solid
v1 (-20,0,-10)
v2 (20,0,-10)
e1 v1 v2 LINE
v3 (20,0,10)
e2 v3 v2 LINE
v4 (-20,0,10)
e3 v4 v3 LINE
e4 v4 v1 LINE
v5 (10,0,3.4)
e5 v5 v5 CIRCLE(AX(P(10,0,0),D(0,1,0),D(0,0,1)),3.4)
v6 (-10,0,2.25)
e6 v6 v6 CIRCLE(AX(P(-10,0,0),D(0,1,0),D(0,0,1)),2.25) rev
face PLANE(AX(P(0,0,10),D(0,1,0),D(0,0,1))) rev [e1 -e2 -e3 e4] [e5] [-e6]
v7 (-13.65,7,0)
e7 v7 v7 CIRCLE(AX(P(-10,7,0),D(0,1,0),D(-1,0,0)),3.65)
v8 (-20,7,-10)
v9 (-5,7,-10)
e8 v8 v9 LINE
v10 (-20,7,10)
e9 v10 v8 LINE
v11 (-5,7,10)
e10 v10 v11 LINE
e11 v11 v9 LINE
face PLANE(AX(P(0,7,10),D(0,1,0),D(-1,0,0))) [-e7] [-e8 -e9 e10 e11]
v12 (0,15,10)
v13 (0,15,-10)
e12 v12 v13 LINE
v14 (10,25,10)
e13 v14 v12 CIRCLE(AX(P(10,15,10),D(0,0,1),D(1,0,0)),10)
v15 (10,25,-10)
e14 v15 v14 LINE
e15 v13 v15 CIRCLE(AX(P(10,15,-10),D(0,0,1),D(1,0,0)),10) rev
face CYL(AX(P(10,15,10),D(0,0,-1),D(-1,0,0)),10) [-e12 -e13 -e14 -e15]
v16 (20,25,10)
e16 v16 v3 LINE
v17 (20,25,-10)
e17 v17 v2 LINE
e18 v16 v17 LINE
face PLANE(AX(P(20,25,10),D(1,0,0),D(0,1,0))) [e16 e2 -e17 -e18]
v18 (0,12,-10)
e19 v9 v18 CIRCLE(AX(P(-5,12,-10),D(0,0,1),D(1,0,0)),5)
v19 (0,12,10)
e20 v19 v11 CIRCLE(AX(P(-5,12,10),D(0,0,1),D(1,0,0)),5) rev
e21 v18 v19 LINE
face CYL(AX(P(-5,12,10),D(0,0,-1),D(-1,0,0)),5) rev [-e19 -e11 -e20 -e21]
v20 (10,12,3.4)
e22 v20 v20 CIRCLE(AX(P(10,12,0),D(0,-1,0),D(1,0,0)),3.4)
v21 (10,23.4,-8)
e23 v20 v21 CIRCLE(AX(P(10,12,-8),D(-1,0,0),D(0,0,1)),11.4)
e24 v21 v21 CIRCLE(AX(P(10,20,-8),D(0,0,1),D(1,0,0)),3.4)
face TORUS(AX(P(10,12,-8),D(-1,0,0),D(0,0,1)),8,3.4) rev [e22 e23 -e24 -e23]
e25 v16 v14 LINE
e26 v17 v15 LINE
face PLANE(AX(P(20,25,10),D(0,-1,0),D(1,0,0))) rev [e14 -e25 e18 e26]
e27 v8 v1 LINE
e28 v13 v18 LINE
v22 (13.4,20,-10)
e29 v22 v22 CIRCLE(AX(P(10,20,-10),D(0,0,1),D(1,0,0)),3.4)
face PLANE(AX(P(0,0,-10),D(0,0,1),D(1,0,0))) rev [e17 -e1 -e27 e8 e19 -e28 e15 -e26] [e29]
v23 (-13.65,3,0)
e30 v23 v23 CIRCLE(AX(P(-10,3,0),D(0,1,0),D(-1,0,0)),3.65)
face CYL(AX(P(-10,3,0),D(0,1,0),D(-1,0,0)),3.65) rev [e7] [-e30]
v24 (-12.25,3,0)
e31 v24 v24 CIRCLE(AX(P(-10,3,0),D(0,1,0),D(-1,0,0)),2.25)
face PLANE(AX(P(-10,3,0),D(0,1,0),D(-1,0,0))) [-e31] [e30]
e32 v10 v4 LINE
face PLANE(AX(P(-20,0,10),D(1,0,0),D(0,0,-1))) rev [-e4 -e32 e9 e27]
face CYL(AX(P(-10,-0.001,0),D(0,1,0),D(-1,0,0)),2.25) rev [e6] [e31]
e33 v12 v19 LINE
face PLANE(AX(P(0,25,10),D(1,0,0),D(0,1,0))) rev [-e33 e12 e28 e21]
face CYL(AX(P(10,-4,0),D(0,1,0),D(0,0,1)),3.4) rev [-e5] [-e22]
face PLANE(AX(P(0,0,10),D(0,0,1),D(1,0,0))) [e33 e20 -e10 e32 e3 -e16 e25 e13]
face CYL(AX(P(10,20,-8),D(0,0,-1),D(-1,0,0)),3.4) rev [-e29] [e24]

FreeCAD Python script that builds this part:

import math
import FreeCAD as App
import Part
import Sketcher

V = App.Vector
Q = App.Units.Quantity


def edges_at(feature, points):
    """Names of the edges that pass closest to the given points."""
    edges = feature.Shape.Edges
    near = lambda p: min(range(len(edges)), key=lambda i: edges[i].distToShape(Part.Vertex(*p))[0])
    return sorted({f"Edge{near(p) + 1}" for p in points})

doc = App.newDocument("Part")
body = doc.addObject("PartDesign::Body", "Body")

# Sketch on XY plane
sketch1 = body.newObject("Sketcher::SketchObject", "Sketch")
sketch1.AttachmentSupport = (doc.getObject("XY_Plane"), [""])
sketch1.MapMode = "FlatFace"
sketch1.addGeometry(Part.LineSegment(V(20, 0, 0), V(20, 25, 0)), False)
sketch1.addGeometry(Part.LineSegment(V(20, 25, 0), V(0, 25, 0)), False)
sketch1.addGeometry(Part.LineSegment(V(0, 25, 0), V(0, 7, 0)), False)
sketch1.addGeometry(Part.LineSegment(V(0, 7, 0), V(-20, 7, 0)), False)
sketch1.addGeometry(Part.LineSegment(V(-20, 7, 0), V(-20, 0, 0)), False)
sketch1.addGeometry(Part.LineSegment(V(-20, 0, 0), V(20, 0, 0)), False)
sketch1.addConstraint(Sketcher.Constraint("Coincident", 0, 2, 1, 1))
sketch1.addConstraint(Sketcher.Constraint("Coincident", 1, 2, 2, 1))
sketch1.addConstraint(Sketcher.Constraint("Coincident", 2, 2, 3, 1))
sketch1.addConstraint(Sketcher.Constraint("Coincident", 3, 2, 4, 1))
sketch1.addConstraint(Sketcher.Constraint("Coincident", 4, 2, 5, 1))
sketch1.addConstraint(Sketcher.Constraint("Coincident", 5, 2, 0, 1))
sketch1.addConstraint(Sketcher.Constraint("Vertical", 0))
sketch1.addConstraint(Sketcher.Constraint("Horizontal", 1))
sketch1.addConstraint(Sketcher.Constraint("Vertical", 2))
sketch1.addConstraint(Sketcher.Constraint("Horizontal", 3))
sketch1.addConstraint(Sketcher.Constraint("Vertical", 4))
sketch1.addConstraint(Sketcher.Constraint("Horizontal", 5))
sketch1.addConstraint(Sketcher.Constraint("Symmetric", 4, 2, 5, 2, -1, 1))
sketch1.addConstraint(Sketcher.Constraint("PointOnObject", 1, 2, -2))
sketch1.addConstraint(Sketcher.Constraint("DistanceX", 1, 2, 1, 1, Q("20 mm")))
sketch1.addConstraint(Sketcher.Constraint("DistanceY", 0, 1, 0, 2, Q("25 mm")))
sketch1.addConstraint(Sketcher.Constraint("DistanceY", 2, 2, 2, 1, Q("18 mm")))
pad1 = body.newObject("PartDesign::Pad", "Pad")
pad1.Profile = sketch1
pad1.Length = 20
pad1.Midplane = True

# Sketch on XZ plane
sketch2 = body.newObject("Sketcher::SketchObject", "Sketch001")
sketch2.AttachmentSupport = (doc.getObject("XZ_Plane"), [""])
sketch2.MapMode = "FlatFace"
sketch2.AttachmentOffset = App.Placement(V(0, 0, -7), App.Rotation())
sketch2.addGeometry(Part.Circle(V(-10, 0, 0), V(0, 0, 1), 3.6), False)
sketch2.addConstraint(Sketcher.Constraint("PointOnObject", 0, 3, -1))
sketch2.addConstraint(Sketcher.Constraint("Diameter", 0, Q("7.3 mm")))
sketch2.addConstraint(Sketcher.Constraint("DistanceX", 0, 3, -1, 1, Q("10 mm")))
pocket1 = body.newObject("PartDesign::Pocket", "Pocket")
pocket1.Profile = sketch2
pocket1.Length = 4
pocket1.Reversed = True

# Sketch on XZ plane
sketch3 = body.newObject("Sketcher::SketchObject", "Sketch002")
sketch3.AttachmentSupport = (doc.getObject("XZ_Plane"), [""])
sketch3.MapMode = "FlatFace"
sketch3.AttachmentOffset = App.Placement(V(0, 0, -3), App.Rotation())
sketch3.addGeometry(Part.Circle(V(-10, 0, 0), V(0, 0, 1), 2.2), False)
sketch3.addConstraint(Sketcher.Constraint("PointOnObject", 0, 3, -1))
sketch3.addConstraint(Sketcher.Constraint("Diameter", 0, Q("4.5 mm")))
sketch3.addConstraint(Sketcher.Constraint("DistanceX", 0, 3, -1, 1, Q("10 mm")))
pocket2 = body.newObject("PartDesign::Pocket", "Pocket001")
pocket2.Profile = sketch3
pocket2.Type = "UpToFirst"
pocket2.Reversed = True

# Sketch on XZ plane
sketch4 = body.newObject("Sketcher::SketchObject", "Sketch003")
sketch4.AttachmentSupport = (doc.getObject("XZ_Plane"), [""])
sketch4.MapMode = "FlatFace"
sketch4.addGeometry(Part.Circle(V(10, 0, 0), V(0, 0, 1), 3.4), False)
sketch4.addConstraint(Sketcher.Constraint("PointOnObject", 0, 3, -1))
sketch4.addConstraint(Sketcher.Constraint("Diameter", 0, Q("6.8 mm")))
sketch4.addConstraint(Sketcher.Constraint("DistanceX", -1, 1, 0, 3, Q("10 mm")))

# Sketch on YZ plane
sketch5 = body.newObject("Sketcher::SketchObject", "Sketch004")
sketch5.AttachmentSupport = (doc.getObject("YZ_Plane"), [""])
sketch5.MapMode = "FlatFace"
sketch5.AttachmentOffset = App.Placement(V(0, 0, 10), App.Rotation())
sketch5.addGeometry(Part.LineSegment(V(0, 0, 0), V(12, 0, 0)), False)
sketch5.addGeometry(Part.ArcOfCircle(Part.Circle(V(12, -8, 0), V(0, 0, 1), 8), math.radians(0), math.radians(90)), False)
sketch5.addGeometry(Part.LineSegment(V(20, -8, 0), V(20, -10, 0)), False)
sketch5.addConstraint(Sketcher.Constraint("Tangent", 0, 2, 1, 2))
sketch5.addConstraint(Sketcher.Constraint("Tangent", 1, 1, 2, 1))
sketch5.addConstraint(Sketcher.Constraint("Horizontal", 0))
sketch5.addConstraint(Sketcher.Constraint("Vertical", 2))
sketch5.addConstraint(Sketcher.Constraint("Coincident", 0, 1, -1, 1))
sketch5.addConstraint(Sketcher.Constraint("Radius", 1, Q("8 mm")))
sketch5.addConstraint(Sketcher.Constraint("DistanceX", 0, 1, 0, 2, Q("12 mm")))
sketch5.addConstraint(Sketcher.Constraint("DistanceY", 2, 2, 2, 1, Q("2 mm")))
doc.recompute()

subtractivepipe = body.newObject("PartDesign::SubtractivePipe", "SubtractivePipe")
subtractivepipe.Profile = sketch4
subtractivepipe.Spine = (sketch5, ["Edge1", "Edge2", "Edge3"])
doc.recompute()

fillet = body.newObject("PartDesign::Fillet", "Fillet")
fillet.Base = (subtractivepipe, edges_at(subtractivepipe, [(0, 7, 0)]))
fillet.Radius = 5
doc.recompute()

fillet2 = body.newObject("PartDesign::Fillet", "Fillet001")
fillet2.Base = (fillet, edges_at(fillet, [(0, 25, 0)]))
fillet2.Radius = 10

doc.recompute()
